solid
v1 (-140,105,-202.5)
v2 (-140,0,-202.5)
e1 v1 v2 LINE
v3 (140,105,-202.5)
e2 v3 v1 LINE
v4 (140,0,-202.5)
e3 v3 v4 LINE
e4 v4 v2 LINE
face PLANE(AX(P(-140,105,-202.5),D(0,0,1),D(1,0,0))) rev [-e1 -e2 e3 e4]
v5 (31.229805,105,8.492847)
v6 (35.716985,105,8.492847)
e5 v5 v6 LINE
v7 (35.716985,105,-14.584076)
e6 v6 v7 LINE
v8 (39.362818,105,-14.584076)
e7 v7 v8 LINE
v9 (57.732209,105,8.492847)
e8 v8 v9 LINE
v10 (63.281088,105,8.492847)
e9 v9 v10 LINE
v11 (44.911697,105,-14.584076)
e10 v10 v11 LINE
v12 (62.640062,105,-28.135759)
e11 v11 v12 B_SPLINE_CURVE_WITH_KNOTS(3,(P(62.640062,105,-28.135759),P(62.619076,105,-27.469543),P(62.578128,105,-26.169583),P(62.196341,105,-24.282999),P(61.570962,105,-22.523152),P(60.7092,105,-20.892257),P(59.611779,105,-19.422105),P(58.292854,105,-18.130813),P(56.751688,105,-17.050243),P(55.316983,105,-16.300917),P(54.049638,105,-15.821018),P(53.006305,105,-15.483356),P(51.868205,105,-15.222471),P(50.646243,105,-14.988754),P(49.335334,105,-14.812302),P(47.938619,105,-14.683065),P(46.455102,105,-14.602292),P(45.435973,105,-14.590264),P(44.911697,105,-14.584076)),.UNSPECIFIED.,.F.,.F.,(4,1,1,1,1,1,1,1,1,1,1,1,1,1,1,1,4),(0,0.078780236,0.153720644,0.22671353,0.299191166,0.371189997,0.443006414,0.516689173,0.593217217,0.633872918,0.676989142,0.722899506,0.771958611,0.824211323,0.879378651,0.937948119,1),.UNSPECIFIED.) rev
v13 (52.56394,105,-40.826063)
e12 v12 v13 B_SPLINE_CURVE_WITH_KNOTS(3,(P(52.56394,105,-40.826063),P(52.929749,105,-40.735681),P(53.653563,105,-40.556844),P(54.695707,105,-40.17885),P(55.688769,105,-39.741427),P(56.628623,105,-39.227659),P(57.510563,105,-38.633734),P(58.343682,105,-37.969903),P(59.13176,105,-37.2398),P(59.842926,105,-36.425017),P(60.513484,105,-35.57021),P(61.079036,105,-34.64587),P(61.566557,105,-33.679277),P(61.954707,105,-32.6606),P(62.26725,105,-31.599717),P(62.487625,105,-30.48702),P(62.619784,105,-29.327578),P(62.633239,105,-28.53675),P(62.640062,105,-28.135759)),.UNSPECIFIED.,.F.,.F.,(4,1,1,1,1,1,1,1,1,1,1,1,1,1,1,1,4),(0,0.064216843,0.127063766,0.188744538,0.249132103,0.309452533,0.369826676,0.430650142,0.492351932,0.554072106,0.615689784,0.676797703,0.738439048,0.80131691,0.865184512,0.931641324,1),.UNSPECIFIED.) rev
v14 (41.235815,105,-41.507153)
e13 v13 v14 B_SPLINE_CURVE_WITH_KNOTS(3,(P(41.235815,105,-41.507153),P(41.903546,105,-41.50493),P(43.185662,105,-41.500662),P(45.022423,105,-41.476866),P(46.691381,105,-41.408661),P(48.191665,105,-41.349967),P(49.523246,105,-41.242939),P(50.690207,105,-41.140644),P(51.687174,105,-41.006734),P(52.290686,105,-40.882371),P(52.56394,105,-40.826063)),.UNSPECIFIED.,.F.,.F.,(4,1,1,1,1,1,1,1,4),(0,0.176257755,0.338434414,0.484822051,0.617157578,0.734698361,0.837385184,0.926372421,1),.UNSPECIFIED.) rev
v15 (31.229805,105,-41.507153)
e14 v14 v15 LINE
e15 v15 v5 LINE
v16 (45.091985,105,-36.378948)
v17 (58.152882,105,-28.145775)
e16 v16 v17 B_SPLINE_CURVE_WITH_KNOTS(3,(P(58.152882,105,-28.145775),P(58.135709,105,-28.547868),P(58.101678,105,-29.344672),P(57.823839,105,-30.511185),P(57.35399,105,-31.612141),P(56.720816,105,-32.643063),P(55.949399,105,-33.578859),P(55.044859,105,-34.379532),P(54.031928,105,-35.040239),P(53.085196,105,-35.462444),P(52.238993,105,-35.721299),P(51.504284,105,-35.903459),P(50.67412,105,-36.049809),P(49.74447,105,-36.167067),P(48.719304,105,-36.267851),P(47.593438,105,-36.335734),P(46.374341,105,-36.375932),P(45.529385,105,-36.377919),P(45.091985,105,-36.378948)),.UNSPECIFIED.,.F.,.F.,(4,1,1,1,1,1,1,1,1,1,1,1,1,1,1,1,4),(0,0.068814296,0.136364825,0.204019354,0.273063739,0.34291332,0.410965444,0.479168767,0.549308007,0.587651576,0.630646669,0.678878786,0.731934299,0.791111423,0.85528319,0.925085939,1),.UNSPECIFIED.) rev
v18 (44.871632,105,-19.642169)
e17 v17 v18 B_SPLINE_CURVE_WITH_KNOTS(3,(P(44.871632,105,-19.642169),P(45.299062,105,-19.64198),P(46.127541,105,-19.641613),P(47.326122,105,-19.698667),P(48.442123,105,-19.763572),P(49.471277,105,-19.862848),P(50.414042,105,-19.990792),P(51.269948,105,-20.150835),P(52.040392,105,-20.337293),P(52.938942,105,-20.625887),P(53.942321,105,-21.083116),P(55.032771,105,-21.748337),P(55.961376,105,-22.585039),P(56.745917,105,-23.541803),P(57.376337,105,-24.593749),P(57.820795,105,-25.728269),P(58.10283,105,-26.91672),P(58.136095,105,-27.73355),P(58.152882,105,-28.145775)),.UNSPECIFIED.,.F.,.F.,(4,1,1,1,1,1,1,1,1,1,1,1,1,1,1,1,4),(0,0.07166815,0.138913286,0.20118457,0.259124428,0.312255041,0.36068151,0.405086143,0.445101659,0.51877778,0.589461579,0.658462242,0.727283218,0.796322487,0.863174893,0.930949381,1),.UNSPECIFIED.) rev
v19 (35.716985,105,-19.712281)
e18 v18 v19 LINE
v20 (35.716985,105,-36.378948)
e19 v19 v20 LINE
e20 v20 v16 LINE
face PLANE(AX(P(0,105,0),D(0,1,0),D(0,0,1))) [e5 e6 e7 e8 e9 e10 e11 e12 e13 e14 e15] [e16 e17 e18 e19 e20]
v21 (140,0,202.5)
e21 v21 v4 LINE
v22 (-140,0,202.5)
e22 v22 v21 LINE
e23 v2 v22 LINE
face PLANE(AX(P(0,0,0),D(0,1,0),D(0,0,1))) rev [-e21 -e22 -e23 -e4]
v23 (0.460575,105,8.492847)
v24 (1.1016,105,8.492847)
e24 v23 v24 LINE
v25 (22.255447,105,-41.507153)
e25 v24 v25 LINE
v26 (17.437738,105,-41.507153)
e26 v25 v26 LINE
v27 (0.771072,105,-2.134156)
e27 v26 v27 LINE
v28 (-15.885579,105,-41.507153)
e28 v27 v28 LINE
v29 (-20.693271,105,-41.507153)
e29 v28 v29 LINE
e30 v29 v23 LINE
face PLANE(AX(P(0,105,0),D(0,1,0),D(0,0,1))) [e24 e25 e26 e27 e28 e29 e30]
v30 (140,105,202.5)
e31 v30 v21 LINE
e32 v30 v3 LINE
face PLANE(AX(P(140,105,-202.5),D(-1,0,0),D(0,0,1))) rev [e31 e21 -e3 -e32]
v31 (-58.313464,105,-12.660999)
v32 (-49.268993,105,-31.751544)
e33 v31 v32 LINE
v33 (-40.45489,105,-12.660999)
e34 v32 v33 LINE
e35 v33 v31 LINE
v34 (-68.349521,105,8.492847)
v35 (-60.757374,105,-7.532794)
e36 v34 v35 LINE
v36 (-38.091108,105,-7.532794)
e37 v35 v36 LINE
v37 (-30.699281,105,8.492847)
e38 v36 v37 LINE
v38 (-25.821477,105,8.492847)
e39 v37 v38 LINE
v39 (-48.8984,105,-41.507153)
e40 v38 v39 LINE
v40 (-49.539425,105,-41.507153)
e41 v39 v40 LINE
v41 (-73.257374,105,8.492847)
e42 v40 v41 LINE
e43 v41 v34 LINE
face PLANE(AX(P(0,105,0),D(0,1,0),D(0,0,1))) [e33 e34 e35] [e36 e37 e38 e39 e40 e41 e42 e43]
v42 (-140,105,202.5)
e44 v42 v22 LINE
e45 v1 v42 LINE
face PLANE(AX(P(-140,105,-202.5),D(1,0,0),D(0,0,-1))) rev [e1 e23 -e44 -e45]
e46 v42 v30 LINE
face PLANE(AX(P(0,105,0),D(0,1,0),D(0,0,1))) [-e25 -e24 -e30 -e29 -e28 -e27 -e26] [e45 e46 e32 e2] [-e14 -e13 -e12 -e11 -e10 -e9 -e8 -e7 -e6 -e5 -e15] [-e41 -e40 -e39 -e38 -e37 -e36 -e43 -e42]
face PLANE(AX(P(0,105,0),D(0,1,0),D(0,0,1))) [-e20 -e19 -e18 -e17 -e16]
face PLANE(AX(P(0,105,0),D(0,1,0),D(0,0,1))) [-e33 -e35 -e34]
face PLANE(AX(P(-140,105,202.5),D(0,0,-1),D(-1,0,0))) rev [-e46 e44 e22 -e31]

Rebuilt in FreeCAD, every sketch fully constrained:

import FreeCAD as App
import Part
import Sketcher

V = App.Vector

doc = App.newDocument("Part")
params = doc.addObject("Spreadsheet::Sheet", "Params")
for row, (alias, value) in enumerate([
    ("sketch1_width", "280 mm"),
    ("sketch1_height", "405 mm"),
    ("pad1_length", "105 mm"),
], start=1):
    params.set(f"A{row}", alias)
    params.set(f"B{row}", "=" + value)
    params.setAlias(f"B{row}", alias)

body = doc.addObject("PartDesign::Body", "Body")

# Sketch on XZ plane
sketch1 = doc.addObject("Sketcher::SketchObject", "Sketch")
body.addObject(sketch1)
sketch1.AttachmentSupport = (doc.XZ_Plane, [""])
sketch1.MapMode = "FlatFace"
sketch1.addGeometry([
    Part.LineSegment(V(-140, -202, 0), V(-140, 202, 0)),
    Part.LineSegment(V(-140, 202, 0), V(140, 202, 0)),
    Part.LineSegment(V(140, 202, 0), V(140, -202, 0)),
    Part.LineSegment(V(140, -202, 0), V(-140, -202, 0)),
], False)
sketch1.addConstraint([
    Sketcher.Constraint("Coincident", 0, 2, 1, 1),
    Sketcher.Constraint("Coincident", 1, 2, 2, 1),
    Sketcher.Constraint("Coincident", 2, 2, 3, 1),
    Sketcher.Constraint("Coincident", 3, 2, 0, 1),
    Sketcher.Constraint("Vertical", 0),
    Sketcher.Constraint("Horizontal", 1),
    Sketcher.Constraint("Vertical", 2),
    Sketcher.Constraint("Horizontal", 3),
    Sketcher.Constraint("Symmetric", 0, 2, 2, 2, -1, 1),
    Sketcher.Constraint("DistanceX", 1, 1, 1, 2, 280.0),
    Sketcher.Constraint("DistanceY", 0, 1, 0, 2, 405.0),
])
sketch1.setExpression("Constraints[9]", "Params.sketch1_width")
sketch1.setExpression("Constraints[10]", "Params.sketch1_height")
pad1 = doc.addObject("PartDesign::Pad", "Pad")
body.addObject(pad1)
pad1.Profile = sketch1
pad1.setExpression("Length", "Params.pad1_length")
pad1.Reversed = True

doc.recompute()
